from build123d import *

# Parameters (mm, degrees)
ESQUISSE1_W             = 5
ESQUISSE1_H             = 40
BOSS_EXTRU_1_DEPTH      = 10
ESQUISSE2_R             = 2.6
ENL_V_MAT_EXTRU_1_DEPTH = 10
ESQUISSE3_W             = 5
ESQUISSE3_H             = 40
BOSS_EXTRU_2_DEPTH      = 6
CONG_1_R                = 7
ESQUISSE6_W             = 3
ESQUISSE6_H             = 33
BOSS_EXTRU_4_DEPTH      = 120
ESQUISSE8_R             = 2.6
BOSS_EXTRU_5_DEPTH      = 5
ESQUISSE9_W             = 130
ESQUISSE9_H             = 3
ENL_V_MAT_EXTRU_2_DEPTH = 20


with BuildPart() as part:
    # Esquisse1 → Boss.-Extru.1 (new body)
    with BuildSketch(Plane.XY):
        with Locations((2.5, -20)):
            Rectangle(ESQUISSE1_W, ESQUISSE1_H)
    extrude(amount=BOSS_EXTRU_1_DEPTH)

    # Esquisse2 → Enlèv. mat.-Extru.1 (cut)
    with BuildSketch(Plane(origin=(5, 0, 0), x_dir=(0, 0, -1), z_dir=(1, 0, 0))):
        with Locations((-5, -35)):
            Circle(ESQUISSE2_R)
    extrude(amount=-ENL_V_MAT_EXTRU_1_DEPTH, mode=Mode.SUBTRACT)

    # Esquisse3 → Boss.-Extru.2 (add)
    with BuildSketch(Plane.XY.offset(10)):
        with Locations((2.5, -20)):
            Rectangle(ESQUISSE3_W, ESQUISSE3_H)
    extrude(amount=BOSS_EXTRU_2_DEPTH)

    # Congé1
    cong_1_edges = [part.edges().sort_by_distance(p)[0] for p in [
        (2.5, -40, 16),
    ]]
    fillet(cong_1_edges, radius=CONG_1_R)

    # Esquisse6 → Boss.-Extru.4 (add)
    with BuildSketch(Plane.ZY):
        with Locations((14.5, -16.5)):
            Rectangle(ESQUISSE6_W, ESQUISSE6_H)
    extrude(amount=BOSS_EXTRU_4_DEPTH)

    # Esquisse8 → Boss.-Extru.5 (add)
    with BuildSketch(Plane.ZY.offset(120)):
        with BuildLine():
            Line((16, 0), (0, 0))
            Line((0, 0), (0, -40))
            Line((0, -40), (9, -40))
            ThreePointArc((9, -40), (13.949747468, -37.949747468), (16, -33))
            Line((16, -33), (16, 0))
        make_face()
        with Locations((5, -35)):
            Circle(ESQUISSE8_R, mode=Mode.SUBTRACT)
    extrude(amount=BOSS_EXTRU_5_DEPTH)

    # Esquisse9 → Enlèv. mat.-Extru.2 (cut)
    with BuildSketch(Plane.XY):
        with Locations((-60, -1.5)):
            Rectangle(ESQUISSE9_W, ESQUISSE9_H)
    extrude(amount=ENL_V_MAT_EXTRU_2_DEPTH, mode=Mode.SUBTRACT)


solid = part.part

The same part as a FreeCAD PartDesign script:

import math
import FreeCAD as App
import Part
import Sketcher
from FreeCAD import Vector
Q = App.Units.Quantity


def edges_at(feature, points):
    """Names of the edges that pass closest to the given points."""
    edges = feature.Shape.Edges
    near = lambda p: min(range(len(edges)), key=lambda i: edges[i].distToShape(Part.Vertex(*p))[0])
    return sorted({f"Edge{near(p) + 1}" for p in points})


def add_polygon(sketch, points):
    """Adds a closed chain of lines whose ends are joined by coincident constraints."""
    first, n = sketch.GeometryCount, len(points)
    for a, b in zip(points, points[1:] + points[:1]):
        sketch.addGeometry(Part.LineSegment(App.Vector(*a, 0), App.Vector(*b, 0)), False)
    for i in range(n):
        sketch.addConstraint(Sketcher.Constraint("Coincident", first + i, 2, first + (i + 1) % n, 1))

doc = App.newDocument("Part")
body = doc.addObject("PartDesign::Body", "Body")

sketch1 = body.newObject("Sketcher::SketchObject", "Sketch")
sketch1.AttachmentSupport = (doc.getObject("XY_Plane"), [""])
sketch1.MapMode = "FlatFace"
add_polygon(sketch1, [(0, 0), (0, -40), (5, -40), (5, 0)])
sketch1.addConstraint(Sketcher.Constraint("Vertical", 0))
sketch1.addConstraint(Sketcher.Constraint("Horizontal", 1))
sketch1.addConstraint(Sketcher.Constraint("Vertical", 2))
sketch1.addConstraint(Sketcher.Constraint("Horizontal", 3))
sketch1.addConstraint(Sketcher.Constraint("Coincident", 3, 2, -1, 1))
sketch1.addConstraint(Sketcher.Constraint("DistanceX", 1, 1, 1, 2, Q("5 mm")))
sketch1.addConstraint(Sketcher.Constraint("DistanceY", 0, 2, 0, 1, Q("40 mm")))
pad1 = body.newObject("PartDesign::Pad", "Pad")
pad1.Profile = sketch1
pad1.Length = 10

sketch2 = body.newObject("Sketcher::SketchObject", "Sketch001")
sketch2.AttachmentSupport = (doc.getObject("YZ_Plane"), [""])
sketch2.MapMode = "FlatFace"
sketch2.AttachmentOffset = App.Placement(Vector(0, 0, 5), App.Rotation())
sketch2.addGeometry(Part.Circle(Vector(-35, 5, 0), Vector(0, 0, 1), 2.6), False)
sketch2.addConstraint(Sketcher.Constraint("Diameter", 0, Q("5.2 mm")))
sketch2.addConstraint(Sketcher.Constraint("DistanceX", 0, 3, -1, 1, Q("35 mm")))
sketch2.addConstraint(Sketcher.Constraint("DistanceY", -1, 1, 0, 3, Q("5 mm")))
pocket1 = body.newObject("PartDesign::Pocket", "Pocket")
pocket1.Profile = sketch2
pocket1.Length = 10

sketch3 = body.newObject("Sketcher::SketchObject", "Sketch002")
sketch3.AttachmentSupport = (doc.getObject("XY_Plane"), [""])
sketch3.MapMode = "FlatFace"
sketch3.AttachmentOffset = App.Placement(Vector(0, 0, 10), App.Rotation())
add_polygon(sketch3, [(0, 0), (0, -40), (5, -40), (5, 0)])
sketch3.addConstraint(Sketcher.Constraint("Vertical", 0))
sketch3.addConstraint(Sketcher.Constraint("Horizontal", 1))
sketch3.addConstraint(Sketcher.Constraint("Vertical", 2))
sketch3.addConstraint(Sketcher.Constraint("Horizontal", 3))
sketch3.addConstraint(Sketcher.Constraint("Coincident", 3, 2, -1, 1))
sketch3.addConstraint(Sketcher.Constraint("DistanceX", 1, 1, 1, 2, Q("5 mm")))
sketch3.addConstraint(Sketcher.Constraint("DistanceY", 0, 2, 0, 1, Q("40 mm")))
pad2 = body.newObject("PartDesign::Pad", "Pad001")
pad2.Profile = sketch3
pad2.Length = 6
doc.recompute()

fillet = body.newObject("PartDesign::Fillet", "Fillet")
fillet.Base = (pad2, edges_at(pad2, [(2.5, -40, 16)]))
fillet.Radius = 7

sketch4 = body.newObject("Sketcher::SketchObject", "Sketch003")
sketch4.AttachmentSupport = (doc.getObject("YZ_Plane"), [""])
sketch4.MapMode = "FlatFace"
add_polygon(sketch4, [(0, 13), (-33, 13), (-33, 16), (0, 16)])
sketch4.addConstraint(Sketcher.Constraint("Horizontal", 0))
sketch4.addConstraint(Sketcher.Constraint("Vertical", 1))
sketch4.addConstraint(Sketcher.Constraint("Horizontal", 2))
sketch4.addConstraint(Sketcher.Constraint("Vertical", 3))
sketch4.addConstraint(Sketcher.Constraint("PointOnObject", 2, 2, -2))
sketch4.addConstraint(Sketcher.Constraint("DistanceX", 0, 2, 0, 1, Q("33 mm")))
sketch4.addConstraint(Sketcher.Constraint("DistanceY", 1, 1, 1, 2, Q("3 mm")))
sketch4.addConstraint(Sketcher.Constraint("DistanceY", -1, 1, 0, 2, Q("13 mm")))
pad3 = body.newObject("PartDesign::Pad", "Pad002")
pad3.Profile = sketch4
pad3.Length = 120
pad3.Reversed = True

sketch5 = body.newObject("Sketcher::SketchObject", "Sketch004")
sketch5.AttachmentSupport = (doc.getObject("YZ_Plane"), [""])
sketch5.MapMode = "FlatFace"
sketch5.AttachmentOffset = App.Placement(Vector(0, 0, -120), App.Rotation())
sketch5.addGeometry(Part.LineSegment(Vector(0, 16, 0), Vector(0, 0, 0)), False)
sketch5.addGeometry(Part.LineSegment(Vector(0, 0, 0), Vector(-40, 0, 0)), False)
sketch5.addGeometry(Part.LineSegment(Vector(-40, 0, 0), Vector(-40, 9, 0)), False)
sketch5.addGeometry(Part.ArcOfCircle(Part.Circle(Vector(-33, 9, 0), Vector(0, 0, 1), 7), math.radians(90), math.radians(180)), False)
sketch5.addGeometry(Part.LineSegment(Vector(-33, 16, 0), Vector(0, 16, 0)), False)
sketch5.addGeometry(Part.Circle(Vector(-35, 5, 0), Vector(0, 0, 1), 2.6), False)
sketch5.addConstraint(Sketcher.Constraint("Coincident", 0, 2, 1, 1))
sketch5.addConstraint(Sketcher.Constraint("Coincident", 1, 2, 2, 1))
sketch5.addConstraint(Sketcher.Constraint("Tangent", 2, 2, 3, 2))
sketch5.addConstraint(Sketcher.Constraint("Tangent", 3, 1, 4, 1))
sketch5.addConstraint(Sketcher.Constraint("Coincident", 4, 2, 0, 1))
sketch5.addConstraint(Sketcher.Constraint("Vertical", 0))
sketch5.addConstraint(Sketcher.Constraint("Horizontal", 1))
sketch5.addConstraint(Sketcher.Constraint("Vertical", 2))
sketch5.addConstraint(Sketcher.Constraint("Horizontal", 4))
sketch5.addConstraint(Sketcher.Constraint("Coincident", 0, 2, -1, 1))
sketch5.addConstraint(Sketcher.Constraint("Radius", 3, Q("7 mm")))
sketch5.addConstraint(Sketcher.Constraint("Diameter", 5, Q("5.2 mm")))
sketch5.addConstraint(Sketcher.Constraint("DistanceX", 1, 2, 1, 1, Q("40 mm")))
sketch5.addConstraint(Sketcher.Constraint("DistanceY", 0, 2, 0, 1, Q("16 mm")))
sketch5.addConstraint(Sketcher.Constraint("DistanceX", 5, 3, -1, 1, Q("35 mm")))
sketch5.addConstraint(Sketcher.Constraint("DistanceY", -1, 1, 5, 3, Q("5 mm")))
pad4 = body.newObject("PartDesign::Pad", "Pad003")
pad4.Profile = sketch5
pad4.Length = 5
pad4.Reversed = True

sketch6 = body.newObject("Sketcher::SketchObject", "Sketch005")
sketch6.AttachmentSupport = (doc.getObject("XY_Plane"), [""])
sketch6.MapMode = "FlatFace"
add_polygon(sketch6, [(-125, 0), (-125, -3), (5, -3), (5, 0)])
sketch6.addConstraint(Sketcher.Constraint("Vertical", 0))
sketch6.addConstraint(Sketcher.Constraint("Horizontal", 1))
sketch6.addConstraint(Sketcher.Constraint("Vertical", 2))
sketch6.addConstraint(Sketcher.Constraint("Horizontal", 3))
sketch6.addConstraint(Sketcher.Constraint("PointOnObject", 2, 2, -1))
sketch6.addConstraint(Sketcher.Constraint("DistanceX", 1, 1, 1, 2, Q("130 mm")))
sketch6.addConstraint(Sketcher.Constraint("DistanceY", 0, 2, 0, 1, Q("3 mm")))
sketch6.addConstraint(Sketcher.Constraint("DistanceX", 0, 2, -1, 1, Q("125 mm")))
pocket2 = body.newObject("PartDesign::Pocket", "Pocket001")
pocket2.Profile = sketch6
pocket2.Length = 20
pocket2.Reversed = True

doc.recompute()
